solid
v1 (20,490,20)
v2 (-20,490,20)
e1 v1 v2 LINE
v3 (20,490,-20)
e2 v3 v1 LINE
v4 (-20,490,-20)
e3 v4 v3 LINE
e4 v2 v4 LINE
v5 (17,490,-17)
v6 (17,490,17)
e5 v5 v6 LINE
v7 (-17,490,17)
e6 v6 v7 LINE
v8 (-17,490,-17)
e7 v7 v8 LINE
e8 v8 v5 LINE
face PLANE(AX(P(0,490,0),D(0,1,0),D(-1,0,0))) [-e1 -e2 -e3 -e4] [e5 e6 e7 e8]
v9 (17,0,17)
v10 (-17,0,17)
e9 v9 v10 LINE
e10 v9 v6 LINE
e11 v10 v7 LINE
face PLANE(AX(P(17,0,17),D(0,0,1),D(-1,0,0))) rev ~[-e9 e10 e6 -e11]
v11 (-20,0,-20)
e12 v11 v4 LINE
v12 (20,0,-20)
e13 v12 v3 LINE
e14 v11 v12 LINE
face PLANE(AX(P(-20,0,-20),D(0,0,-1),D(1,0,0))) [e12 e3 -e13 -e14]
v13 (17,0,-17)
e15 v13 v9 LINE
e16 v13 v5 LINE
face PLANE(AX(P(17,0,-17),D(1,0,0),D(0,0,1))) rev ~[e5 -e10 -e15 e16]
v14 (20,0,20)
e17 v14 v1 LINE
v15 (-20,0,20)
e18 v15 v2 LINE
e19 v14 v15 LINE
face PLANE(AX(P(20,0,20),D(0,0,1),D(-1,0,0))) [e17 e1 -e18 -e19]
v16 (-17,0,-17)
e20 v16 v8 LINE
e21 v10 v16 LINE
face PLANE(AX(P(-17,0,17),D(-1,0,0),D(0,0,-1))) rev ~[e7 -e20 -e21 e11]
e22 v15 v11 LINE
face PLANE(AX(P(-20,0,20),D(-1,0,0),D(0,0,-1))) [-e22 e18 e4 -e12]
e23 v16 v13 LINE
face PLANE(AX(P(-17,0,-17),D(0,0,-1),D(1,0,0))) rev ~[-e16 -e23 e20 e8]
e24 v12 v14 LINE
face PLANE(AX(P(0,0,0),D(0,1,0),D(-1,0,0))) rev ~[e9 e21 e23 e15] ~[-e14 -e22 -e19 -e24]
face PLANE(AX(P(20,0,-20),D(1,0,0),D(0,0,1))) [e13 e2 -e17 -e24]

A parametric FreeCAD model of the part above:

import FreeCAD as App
import Part
import Sketcher
from FreeCAD import Vector

doc = App.newDocument("Part")
body = doc.addObject("PartDesign::Body", "Body")

sketch1 = body.newObject("Sketcher::SketchObject", "Sketch")
sketch1.AttachmentSupport = (doc.getObject("XZ_Plane"), [""])
sketch1.MapMode = "FlatFace"
sketch1.addGeometry([
    Part.LineSegment(Vector(-20, 20, 0), Vector(20, 20, 0)),
    Part.LineSegment(Vector(20, 20, 0), Vector(20, -20, 0)),
    Part.LineSegment(Vector(20, -20, 0), Vector(-20, -20, 0)),
    Part.LineSegment(Vector(-20, -20, 0), Vector(-20, 20, 0)),
    Part.LineSegment(Vector(17, -17, 0), Vector(17, 17, 0)),
    Part.LineSegment(Vector(17, 17, 0), Vector(-17, 17, 0)),
    Part.LineSegment(Vector(-17, 17, 0), Vector(-17, -17, 0)),
    Part.LineSegment(Vector(-17, -17, 0), Vector(17, -17, 0)),
], False)
sketch1.addConstraint([
    Sketcher.Constraint("Coincident", 0, 2, 1, 1),
    Sketcher.Constraint("Coincident", 1, 2, 2, 1),
    Sketcher.Constraint("Coincident", 2, 2, 3, 1),
    Sketcher.Constraint("Coincident", 3, 2, 0, 1),
    Sketcher.Constraint("Coincident", 4, 2, 5, 1),
    Sketcher.Constraint("Coincident", 5, 2, 6, 1),
    Sketcher.Constraint("Coincident", 6, 2, 7, 1),
    Sketcher.Constraint("Coincident", 7, 2, 4, 1),
    Sketcher.Constraint("Horizontal", 0),
    Sketcher.Constraint("Vertical", 1),
    Sketcher.Constraint("Horizontal", 2),
    Sketcher.Constraint("Vertical", 3),
    Sketcher.Constraint("Vertical", 4),
    Sketcher.Constraint("Horizontal", 5),
    Sketcher.Constraint("Vertical", 6),
    Sketcher.Constraint("Horizontal", 7),
    Sketcher.Constraint("Symmetric", 0, 2, 2, 2, -1, 1),
    Sketcher.Constraint("Symmetric", 4, 2, 6, 2, -1, 1),
    Sketcher.Constraint("Equal", 2, 1),
    Sketcher.Constraint("Equal", 7, 4),
    Sketcher.Constraint("DistanceX", 0, 1, 0, 2, 40.0),
    Sketcher.Constraint("DistanceX", 5, 2, 5, 1, 34.0),
])
pad1 = body.newObject("PartDesign::Pad", "Pad")
pad1.Profile = sketch1
pad1.Length = 490
pad1.Reversed = True

doc.recompute()
